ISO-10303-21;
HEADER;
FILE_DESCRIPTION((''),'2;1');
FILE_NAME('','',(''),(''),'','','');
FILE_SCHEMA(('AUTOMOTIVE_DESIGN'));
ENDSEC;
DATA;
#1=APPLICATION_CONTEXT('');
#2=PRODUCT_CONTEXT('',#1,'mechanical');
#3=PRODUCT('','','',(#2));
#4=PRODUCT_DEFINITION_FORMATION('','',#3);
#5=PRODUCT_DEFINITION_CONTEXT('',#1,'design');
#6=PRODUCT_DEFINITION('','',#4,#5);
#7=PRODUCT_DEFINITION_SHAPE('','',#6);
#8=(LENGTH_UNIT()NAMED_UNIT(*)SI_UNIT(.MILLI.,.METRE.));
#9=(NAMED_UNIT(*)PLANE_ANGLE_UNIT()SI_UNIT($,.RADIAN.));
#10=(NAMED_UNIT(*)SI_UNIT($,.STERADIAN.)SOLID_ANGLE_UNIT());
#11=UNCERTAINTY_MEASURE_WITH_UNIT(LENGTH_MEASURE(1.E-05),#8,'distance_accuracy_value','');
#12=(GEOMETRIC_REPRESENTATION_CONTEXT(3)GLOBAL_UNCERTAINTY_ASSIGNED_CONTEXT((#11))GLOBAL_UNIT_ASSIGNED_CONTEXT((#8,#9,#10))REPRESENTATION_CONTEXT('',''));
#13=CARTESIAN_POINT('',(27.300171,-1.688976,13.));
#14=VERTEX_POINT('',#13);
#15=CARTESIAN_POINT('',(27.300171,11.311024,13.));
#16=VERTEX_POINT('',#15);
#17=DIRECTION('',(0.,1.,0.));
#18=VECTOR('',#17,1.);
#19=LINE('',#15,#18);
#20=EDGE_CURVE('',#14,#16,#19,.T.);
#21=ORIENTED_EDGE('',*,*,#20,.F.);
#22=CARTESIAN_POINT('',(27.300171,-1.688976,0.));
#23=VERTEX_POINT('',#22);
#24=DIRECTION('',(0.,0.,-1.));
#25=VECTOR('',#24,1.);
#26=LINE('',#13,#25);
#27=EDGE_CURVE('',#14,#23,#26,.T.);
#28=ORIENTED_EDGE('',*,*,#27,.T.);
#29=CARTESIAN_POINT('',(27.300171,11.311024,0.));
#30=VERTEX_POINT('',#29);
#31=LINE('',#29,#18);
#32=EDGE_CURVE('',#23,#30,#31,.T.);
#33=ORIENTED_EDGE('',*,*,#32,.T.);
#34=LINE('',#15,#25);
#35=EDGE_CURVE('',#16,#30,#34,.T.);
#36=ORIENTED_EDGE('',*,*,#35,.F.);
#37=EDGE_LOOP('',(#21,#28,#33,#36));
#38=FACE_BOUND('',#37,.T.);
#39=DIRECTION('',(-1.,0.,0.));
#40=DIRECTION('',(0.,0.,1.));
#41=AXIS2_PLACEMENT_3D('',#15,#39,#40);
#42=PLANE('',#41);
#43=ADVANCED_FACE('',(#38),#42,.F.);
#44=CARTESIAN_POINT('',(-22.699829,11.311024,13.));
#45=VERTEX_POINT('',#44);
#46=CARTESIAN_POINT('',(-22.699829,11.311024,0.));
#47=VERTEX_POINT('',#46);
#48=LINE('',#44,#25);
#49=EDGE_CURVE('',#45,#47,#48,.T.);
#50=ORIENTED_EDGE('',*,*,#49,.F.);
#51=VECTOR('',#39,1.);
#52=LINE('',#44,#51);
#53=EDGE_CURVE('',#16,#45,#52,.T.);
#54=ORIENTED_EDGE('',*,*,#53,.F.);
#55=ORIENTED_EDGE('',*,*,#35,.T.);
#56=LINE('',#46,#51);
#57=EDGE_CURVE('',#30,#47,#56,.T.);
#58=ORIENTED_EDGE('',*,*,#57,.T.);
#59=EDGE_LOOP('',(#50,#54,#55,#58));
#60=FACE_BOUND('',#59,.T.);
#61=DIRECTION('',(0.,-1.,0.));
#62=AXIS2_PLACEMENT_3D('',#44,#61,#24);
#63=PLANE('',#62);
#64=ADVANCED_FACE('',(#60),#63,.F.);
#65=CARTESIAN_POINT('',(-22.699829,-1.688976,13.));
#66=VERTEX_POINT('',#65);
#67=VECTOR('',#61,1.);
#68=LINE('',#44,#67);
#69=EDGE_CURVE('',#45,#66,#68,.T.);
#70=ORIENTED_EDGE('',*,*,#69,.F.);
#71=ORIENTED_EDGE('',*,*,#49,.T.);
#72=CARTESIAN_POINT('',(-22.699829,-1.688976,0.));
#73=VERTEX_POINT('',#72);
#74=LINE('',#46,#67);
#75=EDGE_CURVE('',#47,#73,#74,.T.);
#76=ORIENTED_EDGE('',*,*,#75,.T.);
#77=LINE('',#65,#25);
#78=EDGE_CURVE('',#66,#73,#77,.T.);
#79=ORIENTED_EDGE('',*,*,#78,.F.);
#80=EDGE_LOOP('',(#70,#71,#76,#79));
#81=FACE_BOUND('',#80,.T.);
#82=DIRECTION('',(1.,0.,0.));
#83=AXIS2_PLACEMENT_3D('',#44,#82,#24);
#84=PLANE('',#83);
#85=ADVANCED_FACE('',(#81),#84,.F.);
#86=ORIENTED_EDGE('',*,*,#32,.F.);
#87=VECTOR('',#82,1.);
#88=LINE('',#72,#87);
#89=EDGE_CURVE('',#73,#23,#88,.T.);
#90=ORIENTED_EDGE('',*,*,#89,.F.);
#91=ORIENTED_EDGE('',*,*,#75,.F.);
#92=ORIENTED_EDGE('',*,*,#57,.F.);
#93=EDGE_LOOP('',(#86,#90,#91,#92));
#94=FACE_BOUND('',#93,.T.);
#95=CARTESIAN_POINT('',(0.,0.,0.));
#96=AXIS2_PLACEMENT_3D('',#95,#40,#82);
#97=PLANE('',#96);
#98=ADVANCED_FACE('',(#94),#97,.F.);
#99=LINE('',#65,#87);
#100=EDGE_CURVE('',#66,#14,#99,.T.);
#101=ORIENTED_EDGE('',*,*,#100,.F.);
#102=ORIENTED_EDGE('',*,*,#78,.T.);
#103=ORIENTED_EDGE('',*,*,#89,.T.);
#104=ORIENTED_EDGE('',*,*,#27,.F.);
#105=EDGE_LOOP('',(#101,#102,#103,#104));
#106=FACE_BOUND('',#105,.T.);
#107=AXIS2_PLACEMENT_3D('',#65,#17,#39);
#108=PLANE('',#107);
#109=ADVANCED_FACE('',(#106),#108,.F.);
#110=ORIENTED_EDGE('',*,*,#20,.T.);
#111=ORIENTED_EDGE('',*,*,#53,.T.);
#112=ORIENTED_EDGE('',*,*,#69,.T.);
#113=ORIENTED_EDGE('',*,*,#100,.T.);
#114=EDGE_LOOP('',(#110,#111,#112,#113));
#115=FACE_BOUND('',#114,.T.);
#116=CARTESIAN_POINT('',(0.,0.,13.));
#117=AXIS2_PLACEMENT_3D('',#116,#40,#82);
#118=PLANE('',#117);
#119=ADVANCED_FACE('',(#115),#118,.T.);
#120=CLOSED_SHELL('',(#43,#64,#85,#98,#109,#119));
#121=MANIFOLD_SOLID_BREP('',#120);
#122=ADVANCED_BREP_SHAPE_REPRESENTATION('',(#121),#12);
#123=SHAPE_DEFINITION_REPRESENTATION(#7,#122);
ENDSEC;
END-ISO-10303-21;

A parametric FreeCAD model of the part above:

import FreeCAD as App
import Part
import Sketcher
from FreeCAD import Vector


def add_polygon(sketch, points):
    """Adds a closed chain of lines whose ends are joined by coincident constraints."""
    first, n = sketch.GeometryCount, len(points)
    for a, b in zip(points, points[1:] + points[:1]):
        sketch.addGeometry(Part.LineSegment(App.Vector(*a, 0), App.Vector(*b, 0)), False)
    for i in range(n):
        sketch.addConstraint(Sketcher.Constraint("Coincident", first + i, 2, first + (i + 1) % n, 1))

doc = App.newDocument("Part")
params = doc.addObject("Spreadsheet::Sheet", "Params")
for row, (alias, value) in enumerate([
    ("sketch1_width", "50 mm"),
    ("sketch1_height", "13 mm"),
    ("pad1_length", "13 mm"),
], start=1):
    params.set(f"A{row}", alias)
    params.set(f"B{row}", "=" + value)
    params.setAlias(f"B{row}", alias)

body = doc.addObject("PartDesign::Body", "Body")

# Sketch on XY plane
sketch1 = body.newObject("Sketcher::SketchObject", "Sketch")
sketch1.AttachmentSupport = (doc.getObject("XY_Plane"), [""])
sketch1.MapMode = "FlatFace"
add_polygon(sketch1, [(-23, 11), (-23, -2), (27, -2), (27, 11)])  # lines 0-3
sketch1.addConstraint([
    Sketcher.Constraint("Vertical", 0),
    Sketcher.Constraint("Horizontal", 1),
    Sketcher.Constraint("Vertical", 2),
    Sketcher.Constraint("Horizontal", 3),
    Sketcher.Constraint("DistanceX", 1, 1, 1, 2, 50.0),
    Sketcher.Constraint("DistanceY", 0, 2, 0, 1, 13.0),
    Sketcher.Constraint("DistanceX", 0, 2, -1, 1, 22.699829),
    Sketcher.Constraint("DistanceY", 0, 2, -1, 1, 1.688976),
])
sketch1.setExpression("Constraints[8]", "Params.sketch1_width")
sketch1.setExpression("Constraints[9]", "Params.sketch1_height")
pad1 = body.newObject("PartDesign::Pad", "Pad")
pad1.Profile = sketch1
pad1.setExpression("Length", "Params.pad1_length")

doc.recompute()
